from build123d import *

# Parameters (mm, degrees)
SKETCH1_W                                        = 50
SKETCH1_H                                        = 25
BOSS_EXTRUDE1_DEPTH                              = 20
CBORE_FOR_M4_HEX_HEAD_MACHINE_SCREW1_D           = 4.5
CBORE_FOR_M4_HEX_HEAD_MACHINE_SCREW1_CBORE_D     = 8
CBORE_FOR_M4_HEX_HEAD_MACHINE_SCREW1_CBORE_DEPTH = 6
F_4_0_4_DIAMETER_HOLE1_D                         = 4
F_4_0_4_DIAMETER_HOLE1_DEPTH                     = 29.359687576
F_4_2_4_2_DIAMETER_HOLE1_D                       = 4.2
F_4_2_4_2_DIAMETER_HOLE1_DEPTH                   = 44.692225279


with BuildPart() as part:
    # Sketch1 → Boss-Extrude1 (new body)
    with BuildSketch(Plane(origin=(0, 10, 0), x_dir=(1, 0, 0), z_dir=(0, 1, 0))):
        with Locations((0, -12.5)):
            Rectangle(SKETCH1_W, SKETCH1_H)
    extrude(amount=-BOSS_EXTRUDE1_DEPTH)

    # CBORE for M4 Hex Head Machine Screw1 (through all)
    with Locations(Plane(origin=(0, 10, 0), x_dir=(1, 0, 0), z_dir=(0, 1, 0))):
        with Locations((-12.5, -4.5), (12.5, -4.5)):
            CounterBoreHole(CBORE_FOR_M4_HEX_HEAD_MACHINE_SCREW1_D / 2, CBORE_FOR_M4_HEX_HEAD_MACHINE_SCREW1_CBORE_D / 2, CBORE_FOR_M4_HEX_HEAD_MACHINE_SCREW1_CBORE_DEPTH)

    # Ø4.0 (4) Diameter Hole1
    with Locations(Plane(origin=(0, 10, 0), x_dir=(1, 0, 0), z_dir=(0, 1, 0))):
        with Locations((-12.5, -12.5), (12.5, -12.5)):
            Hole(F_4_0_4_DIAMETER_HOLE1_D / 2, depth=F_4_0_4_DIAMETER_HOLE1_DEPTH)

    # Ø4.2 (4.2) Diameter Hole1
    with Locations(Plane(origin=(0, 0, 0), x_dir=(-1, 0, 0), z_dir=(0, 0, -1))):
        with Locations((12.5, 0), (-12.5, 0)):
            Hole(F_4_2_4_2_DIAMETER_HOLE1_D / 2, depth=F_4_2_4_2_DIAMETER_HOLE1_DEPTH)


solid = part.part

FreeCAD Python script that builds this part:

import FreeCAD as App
import Part
import Sketcher
Q = App.Units.Quantity


def add_polygon(sketch, points):
    """Adds a closed chain of lines whose ends are joined by coincident constraints."""
    first, n = sketch.GeometryCount, len(points)
    for a, b in zip(points, points[1:] + points[:1]):
        sketch.addGeometry(Part.LineSegment(App.Vector(*a, 0), App.Vector(*b, 0)), False)
    for i in range(n):
        sketch.addConstraint(Sketcher.Constraint("Coincident", first + i, 2, first + (i + 1) % n, 1))

doc = App.newDocument("Part")
body = doc.addObject("PartDesign::Body", "Body")

# Sketch on XZ plane
sketch1 = body.newObject("Sketcher::SketchObject", "Sketch")
sketch1.AttachmentSupport = (doc.getObject("XZ_Plane"), [""])
sketch1.MapMode = "FlatFace"
sketch1.AttachmentOffset = App.Placement(App.Vector(0, 0, -10), App.Rotation())
add_polygon(sketch1, [(-25, 0), (-25, 25), (25, 25), (25, 0)])  # lines 0-3
sketch1.addConstraint(Sketcher.Constraint("Vertical", 0))
sketch1.addConstraint(Sketcher.Constraint("Horizontal", 1))
sketch1.addConstraint(Sketcher.Constraint("Vertical", 2))
sketch1.addConstraint(Sketcher.Constraint("Horizontal", 3))
sketch1.addConstraint(Sketcher.Constraint("Symmetric", 2, 2, 3, 2, -1, 1))
sketch1.addConstraint(Sketcher.Constraint("DistanceX", 1, 1, 1, 2, Q("50 mm")))
sketch1.addConstraint(Sketcher.Constraint("DistanceY", 0, 1, 0, 2, Q("25 mm")))
pad1 = body.newObject("PartDesign::Pad", "Pad")
pad1.Profile = sketch1
pad1.Length = 20

# Sketch on XZ plane
sketch2 = body.newObject("Sketcher::SketchObject", "Sketch001")
sketch2.AttachmentSupport = (doc.getObject("XZ_Plane"), [""])
sketch2.MapMode = "FlatFace"
sketch2.AttachmentOffset = App.Placement(App.Vector(0, 0, -10), App.Rotation())
sketch2.addGeometry(Part.Circle(App.Vector(-12.5, 4.5, 0), App.Vector(0, 0, 1), 2.2), False)
sketch2.addGeometry(Part.Circle(App.Vector(12.5, 4.5, 0), App.Vector(0, 0, 1), 2.2), False)
sketch2.addConstraint(Sketcher.Constraint("Equal", 0, 1))
sketch2.addConstraint(Sketcher.Constraint("Symmetric", 0, 3, 1, 3, -2))
sketch2.addConstraint(Sketcher.Constraint("Diameter", 0, Q("4.5 mm")))
sketch2.addConstraint(Sketcher.Constraint("DistanceX", 0, 3, 1, 3, Q("25 mm")))
sketch2.addConstraint(Sketcher.Constraint("DistanceY", -1, 1, 0, 3, Q("4.5 mm")))
doc.recompute()
hole = body.newObject("PartDesign::Hole", "Hole")
hole.Profile = sketch2
hole.ThreadType = "None"
hole.Diameter = 4.5
hole.DepthType = "ThroughAll"
hole.HoleCutType = "Counterbore"
hole.HoleCutDiameter = 8
hole.HoleCutDepth = 6
hole.Reversed = True

# Sketch on XZ plane
sketch3 = body.newObject("Sketcher::SketchObject", "Sketch002")
sketch3.AttachmentSupport = (doc.getObject("XZ_Plane"), [""])
sketch3.MapMode = "FlatFace"
sketch3.AttachmentOffset = App.Placement(App.Vector(0, 0, -10), App.Rotation())
sketch3.addGeometry(Part.Circle(App.Vector(-12.5, 12.5, 0), App.Vector(0, 0, 1), 2), False)
sketch3.addGeometry(Part.Circle(App.Vector(12.5, 12.5, 0), App.Vector(0, 0, 1), 2), False)
sketch3.addConstraint(Sketcher.Constraint("Equal", 0, 1))
sketch3.addConstraint(Sketcher.Constraint("Symmetric", 0, 3, 1, 3, -2))
sketch3.addConstraint(Sketcher.Constraint("Diameter", 0, Q("4 mm")))
sketch3.addConstraint(Sketcher.Constraint("DistanceX", 0, 3, 1, 3, Q("25 mm")))
sketch3.addConstraint(Sketcher.Constraint("DistanceY", -1, 1, 0, 3, Q("12.5 mm")))
doc.recompute()
hole2 = body.newObject("PartDesign::Hole", "Hole001")
hole2.Profile = sketch3
hole2.ThreadType = "None"
hole2.Diameter = 4
hole2.DepthType = "Dimension"
hole2.Depth = 29.359688
hole2.DrillPoint = "Flat"
hole2.Reversed = True

# Sketch on XY plane
sketch4 = body.newObject("Sketcher::SketchObject", "Sketch003")
sketch4.AttachmentSupport = (doc.getObject("XY_Plane"), [""])
sketch4.MapMode = "FlatFace"
sketch4.addGeometry(Part.Circle(App.Vector(-12.5, 0, 0), App.Vector(0, 0, 1), 2.1), False)
sketch4.addGeometry(Part.Circle(App.Vector(12.5, 0, 0), App.Vector(0, 0, 1), 2.1), False)
sketch4.addConstraint(Sketcher.Constraint("Equal", 0, 1))
sketch4.addConstraint(Sketcher.Constraint("Symmetric", 0, 3, 1, 3, -1, 1))
sketch4.addConstraint(Sketcher.Constraint("PointOnObject", 0, 3, -1))
sketch4.addConstraint(Sketcher.Constraint("Diameter", 0, Q("4.2 mm")))
sketch4.addConstraint(Sketcher.Constraint("DistanceX", 0, 3, 1, 3, Q("25 mm")))
doc.recompute()
hole3 = body.newObject("PartDesign::Hole", "Hole002")
hole3.Profile = sketch4
hole3.ThreadType = "None"
hole3.Diameter = 4.2
hole3.DepthType = "Dimension"
hole3.Depth = 44.692225
hole3.DrillPoint = "Flat"
hole3.Reversed = True

doc.recompute()
